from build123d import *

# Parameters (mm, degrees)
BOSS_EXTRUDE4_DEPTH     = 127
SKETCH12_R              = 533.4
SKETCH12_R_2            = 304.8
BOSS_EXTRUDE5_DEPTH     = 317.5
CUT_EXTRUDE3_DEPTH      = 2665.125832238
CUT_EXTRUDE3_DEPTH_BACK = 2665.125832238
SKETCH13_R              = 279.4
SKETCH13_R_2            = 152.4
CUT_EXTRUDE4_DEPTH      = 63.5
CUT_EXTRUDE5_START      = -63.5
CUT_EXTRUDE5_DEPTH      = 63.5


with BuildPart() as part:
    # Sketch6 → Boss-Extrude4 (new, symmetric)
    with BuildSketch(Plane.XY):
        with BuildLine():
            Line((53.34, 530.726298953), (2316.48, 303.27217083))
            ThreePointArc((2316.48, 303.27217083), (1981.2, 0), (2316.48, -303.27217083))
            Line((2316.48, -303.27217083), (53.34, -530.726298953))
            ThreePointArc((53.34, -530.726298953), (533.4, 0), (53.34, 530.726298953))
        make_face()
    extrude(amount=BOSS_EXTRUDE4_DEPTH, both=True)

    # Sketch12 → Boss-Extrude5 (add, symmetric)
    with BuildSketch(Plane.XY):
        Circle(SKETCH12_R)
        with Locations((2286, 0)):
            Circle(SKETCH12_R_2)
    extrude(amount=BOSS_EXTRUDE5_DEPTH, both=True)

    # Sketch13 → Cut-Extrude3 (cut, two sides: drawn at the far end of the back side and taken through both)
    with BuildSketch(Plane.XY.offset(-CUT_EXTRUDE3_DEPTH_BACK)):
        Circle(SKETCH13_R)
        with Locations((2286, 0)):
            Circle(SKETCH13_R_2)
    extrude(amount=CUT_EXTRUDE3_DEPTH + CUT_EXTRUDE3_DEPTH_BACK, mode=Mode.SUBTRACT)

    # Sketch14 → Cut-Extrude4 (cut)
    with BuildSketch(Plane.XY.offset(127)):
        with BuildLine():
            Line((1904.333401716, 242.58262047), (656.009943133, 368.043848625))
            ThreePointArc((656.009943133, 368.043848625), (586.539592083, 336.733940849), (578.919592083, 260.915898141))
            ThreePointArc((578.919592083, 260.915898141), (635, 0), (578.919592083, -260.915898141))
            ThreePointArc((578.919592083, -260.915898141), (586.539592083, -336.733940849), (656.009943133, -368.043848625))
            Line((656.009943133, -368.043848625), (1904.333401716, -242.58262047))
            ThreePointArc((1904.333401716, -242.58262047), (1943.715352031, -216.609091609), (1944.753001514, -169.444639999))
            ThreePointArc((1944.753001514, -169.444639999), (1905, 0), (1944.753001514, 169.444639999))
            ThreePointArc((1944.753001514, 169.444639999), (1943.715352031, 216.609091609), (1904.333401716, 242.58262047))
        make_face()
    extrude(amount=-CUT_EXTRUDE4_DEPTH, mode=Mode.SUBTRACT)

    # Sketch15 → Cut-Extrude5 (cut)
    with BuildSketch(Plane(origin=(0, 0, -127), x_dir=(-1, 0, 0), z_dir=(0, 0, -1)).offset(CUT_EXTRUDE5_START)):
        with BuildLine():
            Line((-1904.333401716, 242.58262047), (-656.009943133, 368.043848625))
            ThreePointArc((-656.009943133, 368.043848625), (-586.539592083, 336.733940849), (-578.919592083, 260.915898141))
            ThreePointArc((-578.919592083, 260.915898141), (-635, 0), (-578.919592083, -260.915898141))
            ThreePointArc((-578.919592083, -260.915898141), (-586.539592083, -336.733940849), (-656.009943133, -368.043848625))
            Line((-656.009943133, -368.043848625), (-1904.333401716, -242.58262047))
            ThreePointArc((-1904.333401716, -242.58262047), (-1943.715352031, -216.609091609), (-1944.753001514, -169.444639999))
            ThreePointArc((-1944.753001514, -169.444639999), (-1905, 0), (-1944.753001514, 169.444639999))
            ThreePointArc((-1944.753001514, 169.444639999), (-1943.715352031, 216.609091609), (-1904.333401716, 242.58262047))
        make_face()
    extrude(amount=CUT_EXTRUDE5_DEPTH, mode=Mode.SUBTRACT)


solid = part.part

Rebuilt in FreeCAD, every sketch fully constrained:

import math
import FreeCAD as App
import Part
import Sketcher

V = App.Vector
Q = App.Units.Quantity

doc = App.newDocument("Part")
params = doc.addObject("Spreadsheet::Sheet", "Params")
for row, (alias, value) in enumerate([
    ("sketch1_radius", "21 in"),
    ("sketch1_radius2", "12 in"),
    ("pad1_length", "10 in"),
    ("sketch2_diameter", "42 in"),
    ("sketch2_diameter2", "24 in"),
    ("pad2_length", "25 in"),
    ("sketch3_diameter", "22 in"),
    ("sketch3_diameter2", "12 in"),
    ("sketch4_radius", "3 in"),
    ("sketch4_radius2", "25 in"),
    ("sketch4_radius3", "2 in"),
    ("sketch4_radius4", "15 in"),
    ("pocket2_length", "2.5 in"),
    ("sketch5_radius", "2 in"),
    ("sketch5_radius2", "15 in"),
    ("sketch5_radius3", "3 in"),
    ("sketch5_radius4", "25 in"),
    ("pocket3_length", "2.5 in"),
], start=1):
    params.set(f"A{row}", alias)
    params.set(f"B{row}", "=" + value)
    params.setAlias(f"B{row}", alias)

body = doc.addObject("PartDesign::Body", "Body")

# Sketch on XY plane
sketch1 = doc.addObject("Sketcher::SketchObject", "Sketch")
body.addObject(sketch1)
sketch1.AttachmentSupport = (doc.XY_Plane, [""])
sketch1.MapMode = "FlatFace"
sketch1.addGeometry([
    Part.LineSegment(V(2316.48, 303.272171, 0), V(53.34, 530.726299, 0)),
    Part.ArcOfCircle(Part.Circle(V(0, 0, 0), V(0, 0, 1), 533.4), math.radians(-84.26083), math.radians(84.26083)),
    Part.LineSegment(V(53.34, -530.726299, 0), V(2316.48, -303.272171, 0)),
    Part.ArcOfCircle(Part.Circle(V(2286, 0, 0), V(0, 0, 1), 304.8), math.radians(84.26083), math.radians(275.73917)),
], False)
sketch1.addConstraint([
    Sketcher.Constraint("Tangent", 0, 2, 1, 2),
    Sketcher.Constraint("Tangent", 1, 1, 2, 1),
    Sketcher.Constraint("Tangent", 2, 2, 3, 2),
    Sketcher.Constraint("Tangent", 3, 1, 0, 1),
    Sketcher.Constraint("Coincident", 1, 3, -1, 1),
    Sketcher.Constraint("PointOnObject", 3, 3, -1),
    Sketcher.Constraint("Radius", 1, Q("21 in")),
    Sketcher.Constraint("Radius", 3, Q("12 in")),
    Sketcher.Constraint("DistanceX", -1, 1, 3, 3, Q("90 in")),
])
sketch1.setExpression("Constraints[6]", "Params.sketch1_radius")
sketch1.setExpression("Constraints[7]", "Params.sketch1_radius2")
pad1 = doc.addObject("PartDesign::Pad", "Pad")
body.addObject(pad1)
pad1.Profile = sketch1
pad1.setExpression("Length", "Params.pad1_length")
pad1.Midplane = True

# Sketch on XY plane
sketch2 = doc.addObject("Sketcher::SketchObject", "Sketch001")
body.addObject(sketch2)
sketch2.AttachmentSupport = (doc.XY_Plane, [""])
sketch2.MapMode = "FlatFace"
sketch2.addGeometry([
    Part.Circle(V(0, 0, 0), V(0, 0, 1), 533.4),
    Part.Circle(V(2286, 0, 0), V(0, 0, 1), 304.8),
], False)
sketch2.addConstraint([
    Sketcher.Constraint("Coincident", 0, 3, -1, 1),
    Sketcher.Constraint("PointOnObject", 1, 3, -1),
    Sketcher.Constraint("Diameter", 0, Q("42 in")),
    Sketcher.Constraint("Diameter", 1, Q("24 in")),
    Sketcher.Constraint("DistanceX", -1, 1, 1, 3, Q("90 in")),
])
sketch2.setExpression("Constraints[2]", "Params.sketch2_diameter")
sketch2.setExpression("Constraints[3]", "Params.sketch2_diameter2")
pad2 = doc.addObject("PartDesign::Pad", "Pad001")
body.addObject(pad2)
pad2.Profile = sketch2
pad2.setExpression("Length", "Params.pad2_length")
pad2.Midplane = True

# Sketch on XY plane
sketch3 = doc.addObject("Sketcher::SketchObject", "Sketch002")
body.addObject(sketch3)
sketch3.AttachmentSupport = (doc.XY_Plane, [""])
sketch3.MapMode = "FlatFace"
sketch3.addGeometry([
    Part.Circle(V(0, 0, 0), V(0, 0, 1), 279.4),
    Part.Circle(V(2286, 0, 0), V(0, 0, 1), 152.4),
], False)
sketch3.addConstraint([
    Sketcher.Constraint("Coincident", 0, 3, -1, 1),
    Sketcher.Constraint("PointOnObject", 1, 3, -1),
    Sketcher.Constraint("Diameter", 0, Q("22 in")),
    Sketcher.Constraint("Diameter", 1, Q("12 in")),
    Sketcher.Constraint("DistanceX", -1, 1, 1, 3, Q("90 in")),
])
sketch3.setExpression("Constraints[2]", "Params.sketch3_diameter")
sketch3.setExpression("Constraints[3]", "Params.sketch3_diameter2")
pocket1 = doc.addObject("PartDesign::Pocket", "Pocket")
body.addObject(pocket1)
pocket1.Profile = sketch3
pocket1.Type = "ThroughAll"
pocket1.Midplane = True

# Sketch on XY plane
sketch4 = doc.addObject("Sketcher::SketchObject", "Sketch003")
body.addObject(sketch4)
sketch4.AttachmentSupport = (doc.XY_Plane, [""])
sketch4.MapMode = "FlatFace"
sketch4.AttachmentOffset = App.Placement(V(0, 0, 5 * 25.4), App.Rotation())
sketch4.addGeometry([
    Part.LineSegment(V(1904.333402, 242.58262, 0), V(656.009943, 368.043849, 0)),  # 0
    Part.ArcOfCircle(Part.Circle(V(648.389943, 292.225806, 0), V(0, 0, 1), 76.2), math.radians(84.26083), math.radians(204.26083)),  # 1
    Part.ArcOfCircle(Part.Circle(V(0, 0, 0), V(0, 0, 1), 635), math.radians(-24.26083), math.radians(24.26083)),  # 2
    Part.ArcOfCircle(Part.Circle(V(648.389943, -292.225806, 0), V(0, 0, 1), 76.2), math.radians(155.73917), math.radians(275.73917)),  # 3
    Part.LineSegment(V(656.009943, -368.043849, 0), V(1904.333402, -242.58262, 0)),  # 4
    Part.ArcOfCircle(Part.Circle(V(1899.253402, -192.037259, 0), V(0, 0, 1), 50.8), math.radians(-84.26083), math.radians(26.406487)),  # 5
    Part.ArcOfCircle(Part.Circle(V(2286, 0, 0), V(0, 0, 1), 381), math.radians(153.593513), math.radians(206.406487)),  # 6
    Part.ArcOfCircle(Part.Circle(V(1899.253402, 192.037259, 0), V(0, 0, 1), 50.8), math.radians(-26.406487), math.radians(84.26083)),  # 7
], False)
sketch4.addConstraint([
    Sketcher.Constraint("Tangent", 0, 2, 1, 1),
    Sketcher.Constraint("Tangent", 1, 2, 2, 2),
    Sketcher.Constraint("Tangent", 2, 1, 3, 1),
    Sketcher.Constraint("Tangent", 3, 2, 4, 1),
    Sketcher.Constraint("Tangent", 4, 2, 5, 1),
    Sketcher.Constraint("Tangent", 5, 2, 6, 2),
    Sketcher.Constraint("Tangent", 6, 1, 7, 1),
    Sketcher.Constraint("Tangent", 7, 2, 0, 1),
    Sketcher.Constraint("Coincident", 2, 3, -1, 1),
    Sketcher.Constraint("Equal", 1, 3),
    Sketcher.Constraint("Equal", 5, 7),
    Sketcher.Constraint("Symmetric", 5, 3, 7, 3, -1),
    Sketcher.Constraint("Vertical", 1, 3, 3, 3),
    Sketcher.Constraint("Radius", 1, Q("3 in")),
    Sketcher.Constraint("Radius", 2, Q("25 in")),
    Sketcher.Constraint("Radius", 5, Q("2 in")),
    Sketcher.Constraint("Radius", 6, Q("15 in")),
    Sketcher.Constraint("DistanceX", -1, 1, 6, 3, Q("90 in")),
    Sketcher.Constraint("DistanceX", 1, 3, 0, 2, Q("0.3 in")),
    Sketcher.Constraint("DistanceX", -1, 1, 5, 3, Q("1899.253402 mm")),
])
sketch4.setExpression("Constraints[13]", "Params.sketch4_radius")
sketch4.setExpression("Constraints[14]", "Params.sketch4_radius2")
sketch4.setExpression("Constraints[15]", "Params.sketch4_radius3")
sketch4.setExpression("Constraints[16]", "Params.sketch4_radius4")
pocket2 = doc.addObject("PartDesign::Pocket", "Pocket001")
body.addObject(pocket2)
pocket2.Profile = sketch4
pocket2.setExpression("Length", "Params.pocket2_length")

# Sketch on XY plane
sketch5 = doc.addObject("Sketcher::SketchObject", "Sketch004")
body.addObject(sketch5)
sketch5.AttachmentSupport = (doc.XY_Plane, [""])
sketch5.MapMode = "FlatFace"
sketch5.AttachmentOffset = App.Placement(V(0, 0, -2.5 * 25.4), App.Rotation())
sketch5.addGeometry([
    Part.LineSegment(V(656.009943, 368.043849, 0), V(1904.333402, 242.58262, 0)),  # 0
    Part.ArcOfCircle(Part.Circle(V(1899.253402, 192.037259, 0), V(0, 0, 1), 50.8), math.radians(-26.406487), math.radians(84.26083)),  # 1
    Part.ArcOfCircle(Part.Circle(V(2286, 0, 0), V(0, 0, 1), 381), math.radians(153.593513), math.radians(206.406487)),  # 2
    Part.ArcOfCircle(Part.Circle(V(1899.253402, -192.037259, 0), V(0, 0, 1), 50.8), math.radians(-84.26083), math.radians(26.406487)),  # 3
    Part.LineSegment(V(1904.333402, -242.58262, 0), V(656.009943, -368.043849, 0)),  # 4
    Part.ArcOfCircle(Part.Circle(V(648.389943, -292.225806, 0), V(0, 0, 1), 76.2), math.radians(155.73917), math.radians(275.73917)),  # 5
    Part.ArcOfCircle(Part.Circle(V(0, 0, 0), V(0, 0, 1), 635), math.radians(-24.26083), math.radians(24.26083)),  # 6
    Part.ArcOfCircle(Part.Circle(V(648.389943, 292.225806, 0), V(0, 0, 1), 76.2), math.radians(84.26083), math.radians(204.26083)),  # 7
], False)
sketch5.addConstraint([
    Sketcher.Constraint("Tangent", 0, 2, 1, 2),
    Sketcher.Constraint("Tangent", 1, 1, 2, 1),
    Sketcher.Constraint("Tangent", 2, 2, 3, 2),
    Sketcher.Constraint("Tangent", 3, 1, 4, 1),
    Sketcher.Constraint("Tangent", 4, 2, 5, 2),
    Sketcher.Constraint("Tangent", 5, 1, 6, 1),
    Sketcher.Constraint("Tangent", 6, 2, 7, 2),
    Sketcher.Constraint("Tangent", 7, 1, 0, 1),
    Sketcher.Constraint("Coincident", 6, 3, -1, 1),
    Sketcher.Constraint("Equal", 1, 3),
    Sketcher.Constraint("Equal", 5, 7),
    Sketcher.Constraint("Symmetric", 1, 3, 3, 3, -1),
    Sketcher.Constraint("Vertical", 5, 3, 7, 3),
    Sketcher.Constraint("Radius", 1, Q("2 in")),
    Sketcher.Constraint("Radius", 2, Q("15 in")),
    Sketcher.Constraint("Radius", 5, Q("3 in")),
    Sketcher.Constraint("Radius", 6, Q("25 in")),
    Sketcher.Constraint("DistanceX", -1, 1, 2, 3, Q("90 in")),
    Sketcher.Constraint("DistanceX", 1, 3, 0, 2, Q("0.2 in")),
    Sketcher.Constraint("DistanceX", -1, 1, 1, 3, Q("1899.253402 mm")),
])
sketch5.setExpression("Constraints[13]", "Params.sketch5_radius")
sketch5.setExpression("Constraints[14]", "Params.sketch5_radius2")
sketch5.setExpression("Constraints[15]", "Params.sketch5_radius3")
sketch5.setExpression("Constraints[16]", "Params.sketch5_radius4")
pocket3 = doc.addObject("PartDesign::Pocket", "Pocket002")
body.addObject(pocket3)
pocket3.Profile = sketch5
pocket3.setExpression("Length", "Params.pocket3_length")

doc.recompute()
